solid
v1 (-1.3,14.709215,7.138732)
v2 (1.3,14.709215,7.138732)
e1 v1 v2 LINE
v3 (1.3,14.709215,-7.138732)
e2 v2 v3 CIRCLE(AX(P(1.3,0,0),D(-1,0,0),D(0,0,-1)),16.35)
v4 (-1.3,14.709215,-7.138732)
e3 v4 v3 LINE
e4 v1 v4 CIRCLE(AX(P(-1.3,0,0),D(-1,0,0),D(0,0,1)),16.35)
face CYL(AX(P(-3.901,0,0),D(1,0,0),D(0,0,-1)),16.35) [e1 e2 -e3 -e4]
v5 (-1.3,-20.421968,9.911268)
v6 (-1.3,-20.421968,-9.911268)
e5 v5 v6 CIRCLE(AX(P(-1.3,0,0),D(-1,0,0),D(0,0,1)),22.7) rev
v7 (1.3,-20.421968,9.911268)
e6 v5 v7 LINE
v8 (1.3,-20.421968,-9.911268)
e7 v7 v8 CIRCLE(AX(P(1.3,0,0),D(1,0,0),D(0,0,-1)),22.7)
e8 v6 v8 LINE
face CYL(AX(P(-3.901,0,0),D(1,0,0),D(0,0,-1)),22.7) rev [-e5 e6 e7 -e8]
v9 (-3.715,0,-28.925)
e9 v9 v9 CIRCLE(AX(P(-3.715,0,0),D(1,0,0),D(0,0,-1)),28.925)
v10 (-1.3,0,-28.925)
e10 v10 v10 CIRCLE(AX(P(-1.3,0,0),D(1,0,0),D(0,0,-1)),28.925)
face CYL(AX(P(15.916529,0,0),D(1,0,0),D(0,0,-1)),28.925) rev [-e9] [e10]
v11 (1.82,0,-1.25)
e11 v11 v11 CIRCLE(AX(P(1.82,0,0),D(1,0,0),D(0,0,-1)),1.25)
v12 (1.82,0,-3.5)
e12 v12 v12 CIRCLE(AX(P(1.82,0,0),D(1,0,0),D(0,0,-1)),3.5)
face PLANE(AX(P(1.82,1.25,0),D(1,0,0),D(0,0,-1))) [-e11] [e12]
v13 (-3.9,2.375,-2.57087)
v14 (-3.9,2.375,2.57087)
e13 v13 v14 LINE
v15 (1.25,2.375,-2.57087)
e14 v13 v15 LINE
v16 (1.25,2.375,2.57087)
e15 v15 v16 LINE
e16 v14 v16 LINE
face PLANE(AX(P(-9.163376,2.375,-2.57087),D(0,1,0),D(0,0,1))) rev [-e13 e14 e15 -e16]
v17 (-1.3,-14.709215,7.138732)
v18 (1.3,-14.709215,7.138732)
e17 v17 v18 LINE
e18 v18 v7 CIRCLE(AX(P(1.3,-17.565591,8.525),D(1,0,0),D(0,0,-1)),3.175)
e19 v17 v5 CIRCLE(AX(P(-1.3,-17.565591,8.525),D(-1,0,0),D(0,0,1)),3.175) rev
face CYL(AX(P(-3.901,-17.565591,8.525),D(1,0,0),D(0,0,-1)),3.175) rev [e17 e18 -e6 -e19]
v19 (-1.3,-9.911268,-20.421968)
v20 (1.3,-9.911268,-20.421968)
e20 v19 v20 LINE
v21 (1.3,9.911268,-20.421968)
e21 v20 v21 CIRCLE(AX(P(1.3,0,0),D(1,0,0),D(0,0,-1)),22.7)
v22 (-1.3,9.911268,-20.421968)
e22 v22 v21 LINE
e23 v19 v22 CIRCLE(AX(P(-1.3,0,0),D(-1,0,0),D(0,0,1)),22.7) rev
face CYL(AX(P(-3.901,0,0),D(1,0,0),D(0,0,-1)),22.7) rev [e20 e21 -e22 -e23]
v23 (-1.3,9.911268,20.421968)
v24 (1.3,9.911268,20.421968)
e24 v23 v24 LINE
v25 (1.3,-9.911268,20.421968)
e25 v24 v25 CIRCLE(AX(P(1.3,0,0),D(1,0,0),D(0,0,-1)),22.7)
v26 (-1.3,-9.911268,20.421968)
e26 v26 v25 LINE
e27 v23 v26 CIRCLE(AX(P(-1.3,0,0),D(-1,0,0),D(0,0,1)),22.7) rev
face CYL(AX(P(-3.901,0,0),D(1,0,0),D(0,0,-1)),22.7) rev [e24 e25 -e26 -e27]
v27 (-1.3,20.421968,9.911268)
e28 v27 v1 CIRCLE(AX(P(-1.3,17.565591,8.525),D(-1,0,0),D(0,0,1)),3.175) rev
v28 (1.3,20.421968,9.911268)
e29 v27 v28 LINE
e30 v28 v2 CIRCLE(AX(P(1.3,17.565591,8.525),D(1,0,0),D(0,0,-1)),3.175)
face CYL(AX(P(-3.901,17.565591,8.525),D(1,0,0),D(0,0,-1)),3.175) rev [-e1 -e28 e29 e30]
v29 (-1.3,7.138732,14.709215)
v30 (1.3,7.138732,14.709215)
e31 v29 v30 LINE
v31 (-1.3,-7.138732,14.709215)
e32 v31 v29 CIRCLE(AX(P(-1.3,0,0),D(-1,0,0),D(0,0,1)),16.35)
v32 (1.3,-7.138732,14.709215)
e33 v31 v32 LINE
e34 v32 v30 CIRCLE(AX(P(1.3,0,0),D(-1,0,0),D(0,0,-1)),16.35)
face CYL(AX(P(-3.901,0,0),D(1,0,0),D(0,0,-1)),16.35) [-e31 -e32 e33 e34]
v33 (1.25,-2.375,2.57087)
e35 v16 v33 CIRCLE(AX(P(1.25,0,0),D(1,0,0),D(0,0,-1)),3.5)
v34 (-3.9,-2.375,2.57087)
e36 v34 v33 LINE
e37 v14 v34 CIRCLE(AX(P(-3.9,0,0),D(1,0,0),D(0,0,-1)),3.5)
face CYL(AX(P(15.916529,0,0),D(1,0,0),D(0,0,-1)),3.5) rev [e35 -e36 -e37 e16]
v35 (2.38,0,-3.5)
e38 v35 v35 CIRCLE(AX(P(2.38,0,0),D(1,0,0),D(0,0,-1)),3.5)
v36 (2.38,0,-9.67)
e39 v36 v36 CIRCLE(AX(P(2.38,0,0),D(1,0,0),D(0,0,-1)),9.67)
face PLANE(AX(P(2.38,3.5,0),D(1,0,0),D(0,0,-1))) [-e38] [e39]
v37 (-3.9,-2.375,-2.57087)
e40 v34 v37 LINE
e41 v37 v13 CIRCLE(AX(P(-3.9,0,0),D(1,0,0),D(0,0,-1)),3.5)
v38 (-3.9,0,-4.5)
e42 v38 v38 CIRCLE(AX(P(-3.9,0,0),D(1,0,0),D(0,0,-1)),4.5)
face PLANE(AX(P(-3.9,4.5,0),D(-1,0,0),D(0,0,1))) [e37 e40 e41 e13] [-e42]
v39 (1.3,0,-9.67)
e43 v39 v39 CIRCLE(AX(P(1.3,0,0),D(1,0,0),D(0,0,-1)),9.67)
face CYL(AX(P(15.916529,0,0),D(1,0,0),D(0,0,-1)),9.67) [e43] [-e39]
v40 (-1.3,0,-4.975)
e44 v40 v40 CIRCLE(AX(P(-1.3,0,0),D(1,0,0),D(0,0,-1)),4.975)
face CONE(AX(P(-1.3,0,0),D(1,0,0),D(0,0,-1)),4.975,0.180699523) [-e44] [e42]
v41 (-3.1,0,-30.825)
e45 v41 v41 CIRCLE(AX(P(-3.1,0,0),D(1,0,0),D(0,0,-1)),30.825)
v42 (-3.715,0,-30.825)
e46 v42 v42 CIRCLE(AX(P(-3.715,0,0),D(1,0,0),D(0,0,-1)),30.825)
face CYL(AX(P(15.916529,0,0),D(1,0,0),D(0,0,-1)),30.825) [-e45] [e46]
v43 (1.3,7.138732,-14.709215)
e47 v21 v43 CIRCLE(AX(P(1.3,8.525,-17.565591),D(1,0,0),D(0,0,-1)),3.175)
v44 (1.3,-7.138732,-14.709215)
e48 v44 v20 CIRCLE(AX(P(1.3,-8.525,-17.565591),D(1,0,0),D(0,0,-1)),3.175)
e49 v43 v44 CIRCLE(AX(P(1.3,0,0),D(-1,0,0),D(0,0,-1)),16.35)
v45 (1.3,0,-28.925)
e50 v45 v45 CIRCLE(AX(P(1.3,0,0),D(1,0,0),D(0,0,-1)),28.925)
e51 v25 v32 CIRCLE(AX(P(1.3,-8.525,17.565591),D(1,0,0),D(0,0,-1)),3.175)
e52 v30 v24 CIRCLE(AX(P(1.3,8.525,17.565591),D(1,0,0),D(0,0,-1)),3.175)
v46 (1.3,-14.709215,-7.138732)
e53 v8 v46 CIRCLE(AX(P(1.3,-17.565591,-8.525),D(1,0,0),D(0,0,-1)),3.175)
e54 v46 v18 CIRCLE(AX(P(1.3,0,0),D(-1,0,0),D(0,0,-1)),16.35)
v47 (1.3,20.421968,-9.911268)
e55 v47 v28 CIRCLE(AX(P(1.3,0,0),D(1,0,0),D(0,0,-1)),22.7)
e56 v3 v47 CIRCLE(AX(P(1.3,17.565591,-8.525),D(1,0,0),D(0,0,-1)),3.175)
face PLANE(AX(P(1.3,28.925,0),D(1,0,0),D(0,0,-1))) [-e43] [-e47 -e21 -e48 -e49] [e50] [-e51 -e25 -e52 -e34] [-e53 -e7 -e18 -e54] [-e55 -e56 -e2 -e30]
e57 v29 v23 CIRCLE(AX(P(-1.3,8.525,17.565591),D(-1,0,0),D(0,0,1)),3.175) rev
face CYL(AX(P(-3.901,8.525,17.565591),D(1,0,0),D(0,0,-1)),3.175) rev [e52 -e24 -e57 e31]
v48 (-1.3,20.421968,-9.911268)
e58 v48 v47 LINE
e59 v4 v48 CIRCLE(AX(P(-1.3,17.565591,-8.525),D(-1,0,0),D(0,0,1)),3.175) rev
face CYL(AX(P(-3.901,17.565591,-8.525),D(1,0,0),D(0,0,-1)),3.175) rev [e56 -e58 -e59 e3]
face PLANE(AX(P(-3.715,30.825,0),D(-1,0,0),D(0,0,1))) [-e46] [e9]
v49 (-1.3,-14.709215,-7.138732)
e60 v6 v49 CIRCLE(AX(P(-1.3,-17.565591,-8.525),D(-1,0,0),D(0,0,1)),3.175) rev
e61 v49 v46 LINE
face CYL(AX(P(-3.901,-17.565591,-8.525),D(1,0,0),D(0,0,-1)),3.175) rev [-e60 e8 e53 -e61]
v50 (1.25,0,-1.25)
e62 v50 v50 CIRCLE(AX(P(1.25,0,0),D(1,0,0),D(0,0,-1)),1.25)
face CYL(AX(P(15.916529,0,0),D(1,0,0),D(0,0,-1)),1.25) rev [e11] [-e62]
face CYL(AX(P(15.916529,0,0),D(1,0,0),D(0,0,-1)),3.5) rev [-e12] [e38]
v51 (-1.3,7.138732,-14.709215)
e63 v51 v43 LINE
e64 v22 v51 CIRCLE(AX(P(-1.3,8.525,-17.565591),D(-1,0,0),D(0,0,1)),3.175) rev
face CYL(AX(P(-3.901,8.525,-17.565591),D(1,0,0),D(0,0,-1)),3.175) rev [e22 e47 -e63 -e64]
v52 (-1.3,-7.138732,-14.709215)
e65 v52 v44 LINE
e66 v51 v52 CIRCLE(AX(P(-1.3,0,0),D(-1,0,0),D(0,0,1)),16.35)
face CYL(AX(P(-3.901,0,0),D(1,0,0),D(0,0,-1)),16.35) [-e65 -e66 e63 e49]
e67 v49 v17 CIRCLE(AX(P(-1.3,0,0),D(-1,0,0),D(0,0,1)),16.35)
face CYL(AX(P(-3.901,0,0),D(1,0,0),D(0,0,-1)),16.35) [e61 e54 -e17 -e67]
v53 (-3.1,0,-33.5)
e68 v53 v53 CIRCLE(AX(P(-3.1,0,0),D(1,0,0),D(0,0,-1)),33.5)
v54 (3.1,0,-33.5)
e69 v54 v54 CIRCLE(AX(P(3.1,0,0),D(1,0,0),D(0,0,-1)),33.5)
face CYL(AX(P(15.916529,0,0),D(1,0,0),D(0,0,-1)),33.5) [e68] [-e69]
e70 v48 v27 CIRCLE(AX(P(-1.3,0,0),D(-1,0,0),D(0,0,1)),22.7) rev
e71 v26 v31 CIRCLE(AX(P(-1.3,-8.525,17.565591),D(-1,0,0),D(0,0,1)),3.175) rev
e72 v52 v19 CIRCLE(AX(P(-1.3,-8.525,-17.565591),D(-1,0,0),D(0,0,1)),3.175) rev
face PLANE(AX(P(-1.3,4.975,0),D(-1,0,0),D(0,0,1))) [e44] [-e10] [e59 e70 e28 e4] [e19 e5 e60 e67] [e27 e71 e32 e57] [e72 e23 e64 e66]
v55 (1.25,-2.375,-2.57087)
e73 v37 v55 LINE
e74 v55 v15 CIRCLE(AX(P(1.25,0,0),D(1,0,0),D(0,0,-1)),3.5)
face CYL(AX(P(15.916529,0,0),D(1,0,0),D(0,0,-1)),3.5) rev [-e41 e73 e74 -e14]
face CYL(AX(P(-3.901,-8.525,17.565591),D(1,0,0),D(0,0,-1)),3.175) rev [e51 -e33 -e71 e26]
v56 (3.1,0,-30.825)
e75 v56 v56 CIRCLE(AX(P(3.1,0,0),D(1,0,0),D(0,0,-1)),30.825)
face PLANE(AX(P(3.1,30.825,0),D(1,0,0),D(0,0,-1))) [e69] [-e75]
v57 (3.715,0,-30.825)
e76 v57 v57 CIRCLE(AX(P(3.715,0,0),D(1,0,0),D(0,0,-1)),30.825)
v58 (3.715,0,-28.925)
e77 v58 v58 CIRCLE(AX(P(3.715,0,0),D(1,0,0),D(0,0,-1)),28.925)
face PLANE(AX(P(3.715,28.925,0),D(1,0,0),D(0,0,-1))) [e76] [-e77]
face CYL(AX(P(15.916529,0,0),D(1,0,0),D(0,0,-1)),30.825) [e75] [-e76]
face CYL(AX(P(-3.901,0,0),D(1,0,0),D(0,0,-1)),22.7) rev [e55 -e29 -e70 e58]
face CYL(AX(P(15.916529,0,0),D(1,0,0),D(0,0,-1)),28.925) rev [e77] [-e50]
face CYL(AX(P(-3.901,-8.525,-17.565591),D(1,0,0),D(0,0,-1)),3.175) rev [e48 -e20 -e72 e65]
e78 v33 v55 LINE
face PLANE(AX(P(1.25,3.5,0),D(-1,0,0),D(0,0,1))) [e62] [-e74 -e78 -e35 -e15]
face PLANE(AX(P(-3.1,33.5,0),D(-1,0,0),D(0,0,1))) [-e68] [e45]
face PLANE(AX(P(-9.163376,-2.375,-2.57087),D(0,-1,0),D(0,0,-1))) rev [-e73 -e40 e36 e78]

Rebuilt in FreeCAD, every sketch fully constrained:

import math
import FreeCAD as App
import Part
import Sketcher

doc = App.newDocument("Part")
params = doc.addObject("Spreadsheet::Sheet", "Params")
for row, (alias, value) in enumerate([
    ("sketch1_height", "1 mm"),
    ("sketch1_width", "6.2 mm"),
    ("sketch1_height2", "1.9 mm"),
    ("sketch1_width2", "1.08 mm"),
    ("sketch1_width3", "5.15 mm"),
    ("revolution_angle", "360 deg"),
    ("sketch2_radius", "22.7 mm"),
    ("sketch2_radius2", "16.35 mm"),
    ("sketch3_radius", "22.7 mm"),
    ("sketch3_radius2", "16.35 mm"),
    ("sketch4_radius", "22.7 mm"),
    ("sketch4_radius2", "16.35 mm"),
    ("sketch5_radius", "22.7 mm"),
    ("sketch5_radius2", "16.35 mm"),
    ("sketch6_radius", "3.5 mm"),
    ("pad1_length", "5.15 mm"),
], start=1):
    params.set(f"A{row}", alias)
    params.set(f"B{row}", "=" + value)
    params.setAlias(f"B{row}", alias)

body = doc.addObject("PartDesign::Body", "Body")

# Sketch on XY plane
sketch1 = doc.addObject("Sketcher::SketchObject", "Sketch")
body.addObject(sketch1)
sketch1.AttachmentSupport = (doc.XY_Plane, [""])
sketch1.MapMode = "FlatFace"
sketch1.addGeometry([
    Part.LineSegment(App.Vector(2.4, 3.5, 0), App.Vector(2.4, 9.7, 0)),  # 0
    Part.LineSegment(App.Vector(2.4, 9.7, 0), App.Vector(1.3, 9.7, 0)),  # 1
    Part.LineSegment(App.Vector(1.3, 9.7, 0), App.Vector(1.3, 28.9, 0)),  # 2
    Part.LineSegment(App.Vector(1.3, 28.9, 0), App.Vector(3.7, 28.9, 0)),  # 3
    Part.LineSegment(App.Vector(3.7, 28.9, 0), App.Vector(3.7, 30.8, 0)),  # 4
    Part.LineSegment(App.Vector(3.7, 30.8, 0), App.Vector(3.1, 30.8, 0)),  # 5
    Part.LineSegment(App.Vector(3.1, 30.8, 0), App.Vector(3.1, 33.5, 0)),  # 6
    Part.LineSegment(App.Vector(3.1, 33.5, 0), App.Vector(-3.1, 33.5, 0)),  # 7
    Part.LineSegment(App.Vector(-3.1, 33.5, 0), App.Vector(-3.1, 30.8, 0)),  # 8
    Part.LineSegment(App.Vector(-3.1, 30.8, 0), App.Vector(-3.7, 30.8, 0)),  # 9
    Part.LineSegment(App.Vector(-3.7, 30.8, 0), App.Vector(-3.7, 28.9, 0)),  # 10
    Part.LineSegment(App.Vector(-3.7, 28.9, 0), App.Vector(-1.3, 28.9, 0)),  # 11
    Part.LineSegment(App.Vector(-1.3, 28.9, 0), App.Vector(-1.3, 5, 0)),  # 12
    Part.LineSegment(App.Vector(-1.3, 5, 0), App.Vector(-3.9, 4.5, 0)),  # 13
    Part.LineSegment(App.Vector(-3.9, 4.5, 0), App.Vector(-3.9, 3.5, 0)),  # 14
    Part.LineSegment(App.Vector(-3.9, 3.5, 0), App.Vector(1.2, 3.5, 0)),  # 15
    Part.LineSegment(App.Vector(1.2, 3.5, 0), App.Vector(1.2, 1.2, 0)),  # 16
    Part.LineSegment(App.Vector(1.2, 1.2, 0), App.Vector(1.8, 1.2, 0)),  # 17
    Part.LineSegment(App.Vector(1.8, 1.2, 0), App.Vector(1.8, 3.5, 0)),  # 18
    Part.LineSegment(App.Vector(1.8, 3.5, 0), App.Vector(2.4, 3.5, 0)),  # 19
], False)
sketch1.addConstraint([
    Sketcher.Constraint("Coincident", 0, 2, 1, 1),
    Sketcher.Constraint("Coincident", 1, 2, 2, 1),
    Sketcher.Constraint("Coincident", 2, 2, 3, 1),
    Sketcher.Constraint("Coincident", 3, 2, 4, 1),
    Sketcher.Constraint("Coincident", 4, 2, 5, 1),
    Sketcher.Constraint("Coincident", 5, 2, 6, 1),
    Sketcher.Constraint("Coincident", 6, 2, 7, 1),
    Sketcher.Constraint("Coincident", 7, 2, 8, 1),
    Sketcher.Constraint("Coincident", 8, 2, 9, 1),
    Sketcher.Constraint("Coincident", 9, 2, 10, 1),
    Sketcher.Constraint("Coincident", 10, 2, 11, 1),
    Sketcher.Constraint("Coincident", 11, 2, 12, 1),
    Sketcher.Constraint("Coincident", 12, 2, 13, 1),
    Sketcher.Constraint("Coincident", 13, 2, 14, 1),
    Sketcher.Constraint("Coincident", 14, 2, 15, 1),
    Sketcher.Constraint("Coincident", 15, 2, 16, 1),
    Sketcher.Constraint("Coincident", 16, 2, 17, 1),
    Sketcher.Constraint("Coincident", 17, 2, 18, 1),
    Sketcher.Constraint("Coincident", 18, 2, 19, 1),
    Sketcher.Constraint("Coincident", 19, 2, 0, 1),
    Sketcher.Constraint("Vertical", 0),
    Sketcher.Constraint("Horizontal", 1),
    Sketcher.Constraint("Vertical", 2),
    Sketcher.Constraint("Horizontal", 3),
    Sketcher.Constraint("Vertical", 4),
    Sketcher.Constraint("Horizontal", 5),
    Sketcher.Constraint("Vertical", 6),
    Sketcher.Constraint("Horizontal", 7),
    Sketcher.Constraint("Vertical", 8),
    Sketcher.Constraint("Horizontal", 9),
    Sketcher.Constraint("Vertical", 10),
    Sketcher.Constraint("Horizontal", 11),
    Sketcher.Constraint("Vertical", 12),
    Sketcher.Constraint("Vertical", 14),
    Sketcher.Constraint("Horizontal", 15),
    Sketcher.Constraint("Vertical", 16),
    Sketcher.Constraint("Horizontal", 17),
    Sketcher.Constraint("Vertical", 18),
    Sketcher.Constraint("Horizontal", 19),
    Sketcher.Constraint("Symmetric", 5, 2, 8, 2, -2),
    Sketcher.Constraint("Symmetric", 3, 2, 10, 2, -2),
    Sketcher.Constraint("Horizontal", 15, 2, 18, 2),
    Sketcher.Constraint("Equal", 3, 11),
    Sketcher.Constraint("DistanceY", 14, 2, 14, 1, 1.0),
    Sketcher.Constraint("DistanceX", 7, 2, 7, 1, 6.2),
    Sketcher.Constraint("DistanceY", 4, 1, 4, 2, 1.9),
    Sketcher.Constraint("DistanceX", 1, 2, 1, 1, 1.08),
    Sketcher.Constraint("DistanceX", 15, 1, 15, 2, 5.15),
    Sketcher.Constraint("DistanceX", 17, 1, 17, 2, 0.57),
    Sketcher.Constraint("DistanceX", 19, 1, 19, 2, 0.56),
    Sketcher.Constraint("DistanceY", 0, 1, 0, 2, 6.17),
    Sketcher.Constraint("DistanceY", 12, 2, 12, 1, 23.95),
    Sketcher.Constraint("DistanceY", 16, 2, 16, 1, 2.25),
    Sketcher.Constraint("DistanceX", -1, 1, 1, 2, 1.3),
    Sketcher.Constraint("DistanceY", -1, 1, 6, 2, 33.5),
    Sketcher.Constraint("DistanceY", -1, 1, 13, 2, 4.5),
    Sketcher.Constraint("DistanceX", 3, 1, 3, 2, 2.415),
    Sketcher.Constraint("DistanceY", 2, 1, 2, 2, 19.255),
])
sketch1.setExpression("Constraints[43]", "Params.sketch1_height")
sketch1.setExpression("Constraints[44]", "Params.sketch1_width")
sketch1.setExpression("Constraints[45]", "Params.sketch1_height2")
sketch1.setExpression("Constraints[46]", "Params.sketch1_width2")
sketch1.setExpression("Constraints[47]", "Params.sketch1_width3")
revolution = doc.addObject("PartDesign::Revolution", "Revolution")
body.addObject(revolution)
revolution.Profile = sketch1
revolution.ReferenceAxis = (sketch1, ["H_Axis"])
revolution.setExpression("Angle", "Params.revolution_angle")

# Sketch on YZ plane
sketch2 = doc.addObject("Sketcher::SketchObject", "Sketch001")
body.addObject(sketch2)
sketch2.AttachmentSupport = (doc.YZ_Plane, [""])
sketch2.MapMode = "FlatFace"
sketch2.AttachmentOffset = App.Placement(App.Vector(0, 0, 1.3), App.Rotation())
sketch2.addGeometry([
    Part.ArcOfCircle(Part.Circle(App.Vector(0, 0, 0), App.Vector(0, 0, 1), 22.7), math.radians(-26), math.radians(26)),
    Part.ArcOfCircle(Part.Circle(App.Vector(17.6, 8.5, 0), App.Vector(0, 0, 1), 3.2), math.radians(26), math.radians(206)),
    Part.ArcOfCircle(Part.Circle(App.Vector(0, 0, 0), App.Vector(0, 0, 1), 16.3), math.radians(-26), math.radians(26)),
    Part.ArcOfCircle(Part.Circle(App.Vector(17.6, -8.5, 0), App.Vector(0, 0, 1), 3.2), math.radians(154), math.radians(334)),
], False)
sketch2.addConstraint([
    Sketcher.Constraint("Tangent", 0, 2, 1, 1),
    Sketcher.Constraint("Tangent", 1, 2, 2, 2),
    Sketcher.Constraint("Tangent", 2, 1, 3, 1),
    Sketcher.Constraint("Tangent", 3, 2, 0, 1),
    Sketcher.Constraint("Coincident", 0, 3, -1, 1),
    Sketcher.Constraint("Coincident", 2, 3, -1, 1),
    Sketcher.Constraint("Vertical", 1, 3, 3, 3),
    Sketcher.Constraint("Radius", 0, 22.7),
    Sketcher.Constraint("Radius", 2, 16.35),
    Sketcher.Constraint("DistanceY", 3, 3, 1, 3, 17.05),
])
sketch2.setExpression("Constraints[7]", "Params.sketch2_radius")
sketch2.setExpression("Constraints[8]", "Params.sketch2_radius2")
pocket1 = doc.addObject("PartDesign::Pocket", "Pocket")
body.addObject(pocket1)
pocket1.Profile = sketch2
pocket1.Type = "UpToFirst"

# Sketch on YZ plane
sketch3 = doc.addObject("Sketcher::SketchObject", "Sketch002")
body.addObject(sketch3)
sketch3.AttachmentSupport = (doc.YZ_Plane, [""])
sketch3.MapMode = "FlatFace"
sketch3.AttachmentOffset = App.Placement(App.Vector(0, 0, 1.3), App.Rotation())
sketch3.addGeometry([
    Part.ArcOfCircle(Part.Circle(App.Vector(0, 0, 0), App.Vector(0, 0, 1), 22.7), math.radians(-116), math.radians(-64)),
    Part.ArcOfCircle(Part.Circle(App.Vector(8.5, -17.6, 0), App.Vector(0, 0, 1), 3.2), math.radians(-64), math.radians(116)),
    Part.ArcOfCircle(Part.Circle(App.Vector(0, 0, 0), App.Vector(0, 0, 1), 16.3), math.radians(-116), math.radians(-64)),
    Part.ArcOfCircle(Part.Circle(App.Vector(-8.5, -17.6, 0), App.Vector(0, 0, 1), 3.2), math.radians(64), math.radians(244)),
], False)
sketch3.addConstraint([
    Sketcher.Constraint("Tangent", 0, 2, 1, 1),
    Sketcher.Constraint("Tangent", 1, 2, 2, 2),
    Sketcher.Constraint("Tangent", 2, 1, 3, 1),
    Sketcher.Constraint("Tangent", 3, 2, 0, 1),
    Sketcher.Constraint("Coincident", 0, 3, -1, 1),
    Sketcher.Constraint("Coincident", 2, 3, -1, 1),
    Sketcher.Constraint("Horizontal", 1, 3, 3, 3),
    Sketcher.Constraint("Radius", 0, 22.7),
    Sketcher.Constraint("Radius", 2, 16.35),
    Sketcher.Constraint("DistanceX", 3, 3, 1, 3, 17.05),
])
sketch3.setExpression("Constraints[7]", "Params.sketch3_radius")
sketch3.setExpression("Constraints[8]", "Params.sketch3_radius2")
pocket2 = doc.addObject("PartDesign::Pocket", "Pocket001")
body.addObject(pocket2)
pocket2.Profile = sketch3
pocket2.Type = "UpToFirst"

# Sketch on YZ plane
sketch4 = doc.addObject("Sketcher::SketchObject", "Sketch003")
body.addObject(sketch4)
sketch4.AttachmentSupport = (doc.YZ_Plane, [""])
sketch4.MapMode = "FlatFace"
sketch4.AttachmentOffset = App.Placement(App.Vector(0, 0, 1.3), App.Rotation())
sketch4.addGeometry([
    Part.ArcOfCircle(Part.Circle(App.Vector(0, 0, 0), App.Vector(0, 0, 1), 22.7), math.radians(154), math.radians(206)),
    Part.ArcOfCircle(Part.Circle(App.Vector(-17.6, -8.5, 0), App.Vector(0, 0, 1), 3.2), math.radians(-154), math.radians(26)),
    Part.ArcOfCircle(Part.Circle(App.Vector(0, 0, 0), App.Vector(0, 0, 1), 16.3), math.radians(154), math.radians(206)),
    Part.ArcOfCircle(Part.Circle(App.Vector(-17.6, 8.5, 0), App.Vector(0, 0, 1), 3.2), math.radians(-26), math.radians(154)),
], False)
sketch4.addConstraint([
    Sketcher.Constraint("Tangent", 0, 2, 1, 1),
    Sketcher.Constraint("Tangent", 1, 2, 2, 2),
    Sketcher.Constraint("Tangent", 2, 1, 3, 1),
    Sketcher.Constraint("Tangent", 3, 2, 0, 1),
    Sketcher.Constraint("Coincident", 0, 3, -1, 1),
    Sketcher.Constraint("Coincident", 2, 3, -1, 1),
    Sketcher.Constraint("Vertical", 1, 3, 3, 3),
    Sketcher.Constraint("Radius", 0, 22.7),
    Sketcher.Constraint("Radius", 2, 16.35),
    Sketcher.Constraint("DistanceY", 1, 3, 3, 3, 17.05),
])
sketch4.setExpression("Constraints[7]", "Params.sketch4_radius")
sketch4.setExpression("Constraints[8]", "Params.sketch4_radius2")
pocket3 = doc.addObject("PartDesign::Pocket", "Pocket002")
body.addObject(pocket3)
pocket3.Profile = sketch4
pocket3.Type = "UpToFirst"

# Sketch on YZ plane
sketch5 = doc.addObject("Sketcher::SketchObject", "Sketch004")
body.addObject(sketch5)
sketch5.AttachmentSupport = (doc.YZ_Plane, [""])
sketch5.MapMode = "FlatFace"
sketch5.AttachmentOffset = App.Placement(App.Vector(0, 0, 1.3), App.Rotation())
sketch5.addGeometry([
    Part.ArcOfCircle(Part.Circle(App.Vector(0, 0, 0), App.Vector(0, 0, 1), 22.7), math.radians(64), math.radians(116)),
    Part.ArcOfCircle(Part.Circle(App.Vector(-8.5, 17.6, 0), App.Vector(0, 0, 1), 3.2), math.radians(116), math.radians(296)),
    Part.ArcOfCircle(Part.Circle(App.Vector(0, 0, 0), App.Vector(0, 0, 1), 16.3), math.radians(64), math.radians(116)),
    Part.ArcOfCircle(Part.Circle(App.Vector(8.5, 17.6, 0), App.Vector(0, 0, 1), 3.2), math.radians(-116), math.radians(64)),
], False)
sketch5.addConstraint([
    Sketcher.Constraint("Tangent", 0, 2, 1, 1),
    Sketcher.Constraint("Tangent", 1, 2, 2, 2),
    Sketcher.Constraint("Tangent", 2, 1, 3, 1),
    Sketcher.Constraint("Tangent", 3, 2, 0, 1),
    Sketcher.Constraint("Coincident", 0, 3, -1, 1),
    Sketcher.Constraint("Coincident", 2, 3, -1, 1),
    Sketcher.Constraint("Horizontal", 1, 3, 3, 3),
    Sketcher.Constraint("Radius", 0, 22.7),
    Sketcher.Constraint("Radius", 2, 16.35),
    Sketcher.Constraint("DistanceX", 1, 3, 3, 3, 17.05),
])
sketch5.setExpression("Constraints[7]", "Params.sketch5_radius")
sketch5.setExpression("Constraints[8]", "Params.sketch5_radius2")
pocket4 = doc.addObject("PartDesign::Pocket", "Pocket003")
body.addObject(pocket4)
pocket4.Profile = sketch5
pocket4.Type = "UpToFirst"

# Sketch on YZ plane
sketch6 = doc.addObject("Sketcher::SketchObject", "Sketch005")
body.addObject(sketch6)
sketch6.AttachmentSupport = (doc.YZ_Plane, [""])
sketch6.MapMode = "FlatFace"
sketch6.AttachmentOffset = App.Placement(App.Vector(0, 0, 1.25), App.Rotation())
sketch6.addGeometry([
    Part.LineSegment(App.Vector(2.4, -2.6, 0), App.Vector(2.4, 2.6, 0)),
    Part.ArcOfCircle(Part.Circle(App.Vector(0, 0, 0), App.Vector(0, 0, 1), 3.5), math.radians(-47), math.radians(47)),
    Part.LineSegment(App.Vector(-2.4, 2.6, 0), App.Vector(-2.4, -2.6, 0)),
    Part.ArcOfCircle(Part.Circle(App.Vector(0, 0, 0), App.Vector(0, 0, 1), 3.5), math.radians(133), math.radians(227)),
], False)
sketch6.addConstraint([
    Sketcher.Constraint("Coincident", 0, 1, 1, 1),
    Sketcher.Constraint("Coincident", 1, 2, 0, 2),
    Sketcher.Constraint("Coincident", 2, 1, 3, 1),
    Sketcher.Constraint("Coincident", 3, 2, 2, 2),
    Sketcher.Constraint("Vertical", 0),
    Sketcher.Constraint("Vertical", 2),
    Sketcher.Constraint("Coincident", 1, 3, -1, 1),
    Sketcher.Constraint("Coincident", 3, 3, -1, 1),
    Sketcher.Constraint("Equal", 1, 3),
    Sketcher.Constraint("Horizontal", 1, 2, 2, 1),
    Sketcher.Constraint("Radius", 1, 3.5),
    Sketcher.Constraint("DistanceX", 2, 1, 1, 2, 4.75),
])
sketch6.setExpression("Constraints[10]", "Params.sketch6_radius")
pad1 = doc.addObject("PartDesign::Pad", "Pad")
body.addObject(pad1)
pad1.Profile = sketch6
pad1.setExpression("Length", "Params.pad1_length")
pad1.Reversed = True

doc.recompute()
